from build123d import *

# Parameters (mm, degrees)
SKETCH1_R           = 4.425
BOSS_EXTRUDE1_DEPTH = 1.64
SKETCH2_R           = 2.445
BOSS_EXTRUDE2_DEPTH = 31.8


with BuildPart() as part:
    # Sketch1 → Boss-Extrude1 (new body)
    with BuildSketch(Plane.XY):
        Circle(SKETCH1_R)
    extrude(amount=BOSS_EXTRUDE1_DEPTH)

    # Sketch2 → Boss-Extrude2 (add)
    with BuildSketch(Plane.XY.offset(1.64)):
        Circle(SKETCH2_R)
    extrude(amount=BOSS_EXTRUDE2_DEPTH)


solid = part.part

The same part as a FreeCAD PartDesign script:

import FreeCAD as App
import Part
import Sketcher
from FreeCAD import Vector

doc = App.newDocument("Part")
body = doc.addObject("PartDesign::Body", "Body")

sketch1 = body.newObject("Sketcher::SketchObject", "Sketch")
sketch1.AttachmentSupport = (doc.getObject("XY_Plane"), [""])
sketch1.MapMode = "FlatFace"
sketch1.addGeometry(Part.Circle(Vector(0, 0, 0), Vector(0, 0, 1), 4.425), False)
sketch1.addConstraint(Sketcher.Constraint("Coincident", 0, 3, -1, 1))
sketch1.addConstraint(Sketcher.Constraint("Diameter", 0, 8.85))
pad1 = body.newObject("PartDesign::Pad", "Pad")
pad1.Profile = sketch1
pad1.Length = 1.64

sketch2 = body.newObject("Sketcher::SketchObject", "Sketch001")
sketch2.AttachmentSupport = (doc.getObject("XY_Plane"), [""])
sketch2.MapMode = "FlatFace"
sketch2.AttachmentOffset = App.Placement(Vector(0, 0, 1.64), App.Rotation())
sketch2.addGeometry(Part.Circle(Vector(0, 0, 0), Vector(0, 0, 1), 2.445), False)
sketch2.addConstraint(Sketcher.Constraint("Coincident", 0, 3, -1, 1))
sketch2.addConstraint(Sketcher.Constraint("Diameter", 0, 4.89))
pad2 = body.newObject("PartDesign::Pad", "Pad001")
pad2.Profile = sketch2
pad2.Length = 31.8

doc.recompute()
